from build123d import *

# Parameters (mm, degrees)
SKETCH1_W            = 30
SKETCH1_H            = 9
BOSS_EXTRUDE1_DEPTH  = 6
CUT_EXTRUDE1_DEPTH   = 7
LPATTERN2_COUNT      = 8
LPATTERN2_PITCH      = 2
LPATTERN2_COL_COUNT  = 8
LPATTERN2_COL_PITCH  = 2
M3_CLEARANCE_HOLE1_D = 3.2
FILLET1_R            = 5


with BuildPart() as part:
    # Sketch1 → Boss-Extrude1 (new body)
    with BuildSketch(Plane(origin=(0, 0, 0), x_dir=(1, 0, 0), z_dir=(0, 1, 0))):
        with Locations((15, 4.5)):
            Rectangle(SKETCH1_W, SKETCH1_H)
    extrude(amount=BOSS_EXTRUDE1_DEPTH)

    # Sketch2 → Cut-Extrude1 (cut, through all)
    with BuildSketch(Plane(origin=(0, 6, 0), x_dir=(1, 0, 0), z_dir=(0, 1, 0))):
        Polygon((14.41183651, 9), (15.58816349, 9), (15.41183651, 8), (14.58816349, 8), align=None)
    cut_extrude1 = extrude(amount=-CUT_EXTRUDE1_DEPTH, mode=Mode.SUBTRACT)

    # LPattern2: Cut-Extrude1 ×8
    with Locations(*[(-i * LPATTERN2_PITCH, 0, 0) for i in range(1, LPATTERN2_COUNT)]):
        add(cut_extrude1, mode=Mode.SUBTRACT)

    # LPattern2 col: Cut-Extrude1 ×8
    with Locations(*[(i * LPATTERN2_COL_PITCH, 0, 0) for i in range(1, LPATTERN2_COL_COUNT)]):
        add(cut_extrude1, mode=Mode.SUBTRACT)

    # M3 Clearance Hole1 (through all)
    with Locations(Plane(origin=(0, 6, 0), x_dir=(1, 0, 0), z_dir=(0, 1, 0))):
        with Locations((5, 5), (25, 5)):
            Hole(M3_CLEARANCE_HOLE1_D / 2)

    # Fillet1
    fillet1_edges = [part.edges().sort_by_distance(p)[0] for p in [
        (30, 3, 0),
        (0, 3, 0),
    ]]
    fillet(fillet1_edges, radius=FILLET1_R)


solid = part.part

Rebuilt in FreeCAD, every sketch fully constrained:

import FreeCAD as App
import Part
import Sketcher
Q = App.Units.Quantity


def edges_at(feature, points):
    """Names of the edges that pass closest to the given points."""
    edges = feature.Shape.Edges
    near = lambda p: min(range(len(edges)), key=lambda i: edges[i].distToShape(Part.Vertex(*p))[0])
    return sorted({f"Edge{near(p) + 1}" for p in points})

doc = App.newDocument("Part")
body = doc.addObject("PartDesign::Body", "Body")

sketch1 = doc.addObject("Sketcher::SketchObject", "Sketch")
body.addObject(sketch1)
sketch1.AttachmentSupport = (doc.XZ_Plane, [""])
sketch1.MapMode = "FlatFace"
sketch1.addGeometry([
    Part.LineSegment(App.Vector(0, -9, 0), App.Vector(0, 0, 0)),
    Part.LineSegment(App.Vector(0, 0, 0), App.Vector(30, 0, 0)),
    Part.LineSegment(App.Vector(30, 0, 0), App.Vector(30, -9, 0)),
    Part.LineSegment(App.Vector(30, -9, 0), App.Vector(0, -9, 0)),
], False)
sketch1.addConstraint([
    Sketcher.Constraint("Coincident", 0, 2, 1, 1),
    Sketcher.Constraint("Coincident", 1, 2, 2, 1),
    Sketcher.Constraint("Coincident", 2, 2, 3, 1),
    Sketcher.Constraint("Coincident", 3, 2, 0, 1),
    Sketcher.Constraint("Vertical", 0),
    Sketcher.Constraint("Horizontal", 1),
    Sketcher.Constraint("Vertical", 2),
    Sketcher.Constraint("Horizontal", 3),
    Sketcher.Constraint("Coincident", 0, 2, -1, 1),
    Sketcher.Constraint("DistanceX", 1, 1, 1, 2, Q("30 mm")),
    Sketcher.Constraint("DistanceY", 0, 1, 0, 2, Q("9 mm")),
])
pad1 = doc.addObject("PartDesign::Pad", "Pad")
body.addObject(pad1)
pad1.Profile = sketch1
pad1.Length = 6
pad1.Reversed = True

sketch2 = doc.addObject("Sketcher::SketchObject", "Sketch001")
body.addObject(sketch2)
sketch2.AttachmentSupport = (doc.XZ_Plane, [""])
sketch2.MapMode = "FlatFace"
sketch2.AttachmentOffset = App.Placement(App.Vector(0, 0, -6), App.Rotation())
sketch2.addGeometry([
    Part.LineSegment(App.Vector(15.6, -9, 0), App.Vector(14.4, -9, 0)),
    Part.LineSegment(App.Vector(14.4, -9, 0), App.Vector(14.6, -8, 0)),
    Part.LineSegment(App.Vector(14.6, -8, 0), App.Vector(15.4, -8, 0)),
    Part.LineSegment(App.Vector(15.4, -8, 0), App.Vector(15.6, -9, 0)),
], False)
sketch2.addConstraint([
    Sketcher.Constraint("Coincident", 0, 2, 1, 1),
    Sketcher.Constraint("Coincident", 1, 2, 2, 1),
    Sketcher.Constraint("Coincident", 2, 2, 3, 1),
    Sketcher.Constraint("Coincident", 3, 2, 0, 1),
    Sketcher.Constraint("Horizontal", 0),
    Sketcher.Constraint("Horizontal", 2),
    Sketcher.Constraint("Equal", 1, 3),
    Sketcher.Constraint("Angle", 1, Q("80 deg")),
    Sketcher.Constraint("DistanceY", 0, 2, -1, 1, Q("9 mm")),
    Sketcher.Constraint("DistanceY", 1, 2, -1, 1, Q("8 mm")),
    Sketcher.Constraint("DistanceX", 0, 2, 2, 2, Q("1 mm")),
    Sketcher.Constraint("DistanceX", -1, 1, 0, 2, Q("14.411837 mm")),
])
pocket1 = doc.addObject("PartDesign::Pocket", "Pocket")
body.addObject(pocket1)
pocket1.Profile = sketch2
pocket1.Type = "ThroughAll"
pocket1.Reversed = True
doc.recompute()

linearpattern = doc.addObject("PartDesign::LinearPattern", "LinearPattern")
body.addObject(linearpattern)
linearpattern.Originals = [pocket1]
linearpattern.Direction = (doc.X_Axis, [""])
linearpattern.Mode = "offset"
linearpattern.Offset = 2
linearpattern.Occurrences = 8
linearpattern.Reversed = True
body.Tip = linearpattern
doc.recompute()

linearpattern2 = doc.addObject("PartDesign::LinearPattern", "LinearPattern001")
body.addObject(linearpattern2)
linearpattern2.Originals = [pocket1]
linearpattern2.Direction = (doc.X_Axis, [""])
linearpattern2.Mode = "offset"
linearpattern2.Offset = 2
linearpattern2.Occurrences = 8
body.Tip = linearpattern2

sketch3 = doc.addObject("Sketcher::SketchObject", "Sketch002")
body.addObject(sketch3)
sketch3.AttachmentSupport = (doc.XZ_Plane, [""])
sketch3.MapMode = "FlatFace"
sketch3.AttachmentOffset = App.Placement(App.Vector(0, 0, -6), App.Rotation())
sketch3.addGeometry([
    Part.Circle(App.Vector(5, -5, 0), App.Vector(0, 0, 1), 1.6),
    Part.Circle(App.Vector(25, -5, 0), App.Vector(0, 0, 1), 1.6),
], False)
sketch3.addConstraint([
    Sketcher.Constraint("Equal", 0, 1),
    Sketcher.Constraint("Horizontal", 0, 3, 1, 3),
    Sketcher.Constraint("Diameter", 0, Q("3.2 mm")),
    Sketcher.Constraint("DistanceX", -1, 1, 0, 3, Q("5 mm")),
    Sketcher.Constraint("DistanceY", 0, 3, -1, 1, Q("5 mm")),
    Sketcher.Constraint("DistanceX", -1, 1, 1, 3, Q("25 mm")),
])
doc.recompute()
hole = doc.addObject("PartDesign::Hole", "Hole")
body.addObject(hole)
hole.Profile = sketch3
hole.ThreadType = "None"
hole.Diameter = 3.2
hole.DepthType = "ThroughAll"
hole.Reversed = True
doc.recompute()

fillet = doc.addObject("PartDesign::Fillet", "Fillet")
body.addObject(fillet)
fillet.Base = (hole, edges_at(hole, [(30, 3, 0), (0, 3, 0)]))
fillet.Radius = 5

doc.recompute()
